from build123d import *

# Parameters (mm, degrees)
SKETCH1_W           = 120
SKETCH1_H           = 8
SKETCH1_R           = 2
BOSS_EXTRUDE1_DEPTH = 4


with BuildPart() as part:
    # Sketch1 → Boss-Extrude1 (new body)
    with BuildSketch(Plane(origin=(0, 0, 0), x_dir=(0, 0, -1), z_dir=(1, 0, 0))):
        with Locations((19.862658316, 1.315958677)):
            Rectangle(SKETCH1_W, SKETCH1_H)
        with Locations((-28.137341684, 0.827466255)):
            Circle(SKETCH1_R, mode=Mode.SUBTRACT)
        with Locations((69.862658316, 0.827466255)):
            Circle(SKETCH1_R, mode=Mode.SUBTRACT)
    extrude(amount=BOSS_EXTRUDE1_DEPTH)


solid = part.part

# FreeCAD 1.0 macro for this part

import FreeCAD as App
import Part
import Sketcher

V = App.Vector
Q = App.Units.Quantity


def add_polygon(sketch, points):
    """Adds a closed chain of lines whose ends are joined by coincident constraints."""
    first, n = sketch.GeometryCount, len(points)
    for a, b in zip(points, points[1:] + points[:1]):
        sketch.addGeometry(Part.LineSegment(App.Vector(*a, 0), App.Vector(*b, 0)), False)
    for i in range(n):
        sketch.addConstraint(Sketcher.Constraint("Coincident", first + i, 2, first + (i + 1) % n, 1))

doc = App.newDocument("Part")
body = doc.addObject("PartDesign::Body", "Body")

sketch1 = body.newObject("Sketcher::SketchObject", "Sketch")
sketch1.AttachmentSupport = (doc.getObject("YZ_Plane"), [""])
sketch1.MapMode = "FlatFace"
add_polygon(sketch1, [(5.3, 40.1), (-2.7, 40.1), (-2.7, -79.9), (5.3, -79.9)])
sketch1.addGeometry(Part.Circle(V(0.8, 28.1, 0), V(0, 0, 1), 2), False)
sketch1.addGeometry(Part.Circle(V(0.8, -69.9, 0), V(0, 0, 1), 2), False)
sketch1.addConstraint([
    Sketcher.Constraint("Horizontal", 0),
    Sketcher.Constraint("Vertical", 1),
    Sketcher.Constraint("Horizontal", 2),
    Sketcher.Constraint("Vertical", 3),
    Sketcher.Constraint("Equal", 4, 5),
    Sketcher.Constraint("Vertical", 4, 3, 5, 3),
    Sketcher.Constraint("Diameter", 4, Q("4 mm")),
    Sketcher.Constraint("DistanceX", 0, 2, 0, 1, Q("8 mm")),
    Sketcher.Constraint("DistanceY", 1, 2, 1, 1, Q("120 mm")),
    Sketcher.Constraint("DistanceY", 5, 3, 4, 3, Q("98 mm")),
    Sketcher.Constraint("DistanceY", 4, 3, 0, 2, Q("12 mm")),
    Sketcher.Constraint("DistanceY", -1, 1, 4, 3, Q("28.137342 mm")),
    Sketcher.Constraint("DistanceX", 0, 2, -1, 1, Q("2.684041 mm")),
    Sketcher.Constraint("DistanceX", -1, 1, 4, 3, Q("0.827466 mm")),
])
pad1 = body.newObject("PartDesign::Pad", "Pad")
pad1.Profile = sketch1
pad1.Length = 4

doc.recompute()
